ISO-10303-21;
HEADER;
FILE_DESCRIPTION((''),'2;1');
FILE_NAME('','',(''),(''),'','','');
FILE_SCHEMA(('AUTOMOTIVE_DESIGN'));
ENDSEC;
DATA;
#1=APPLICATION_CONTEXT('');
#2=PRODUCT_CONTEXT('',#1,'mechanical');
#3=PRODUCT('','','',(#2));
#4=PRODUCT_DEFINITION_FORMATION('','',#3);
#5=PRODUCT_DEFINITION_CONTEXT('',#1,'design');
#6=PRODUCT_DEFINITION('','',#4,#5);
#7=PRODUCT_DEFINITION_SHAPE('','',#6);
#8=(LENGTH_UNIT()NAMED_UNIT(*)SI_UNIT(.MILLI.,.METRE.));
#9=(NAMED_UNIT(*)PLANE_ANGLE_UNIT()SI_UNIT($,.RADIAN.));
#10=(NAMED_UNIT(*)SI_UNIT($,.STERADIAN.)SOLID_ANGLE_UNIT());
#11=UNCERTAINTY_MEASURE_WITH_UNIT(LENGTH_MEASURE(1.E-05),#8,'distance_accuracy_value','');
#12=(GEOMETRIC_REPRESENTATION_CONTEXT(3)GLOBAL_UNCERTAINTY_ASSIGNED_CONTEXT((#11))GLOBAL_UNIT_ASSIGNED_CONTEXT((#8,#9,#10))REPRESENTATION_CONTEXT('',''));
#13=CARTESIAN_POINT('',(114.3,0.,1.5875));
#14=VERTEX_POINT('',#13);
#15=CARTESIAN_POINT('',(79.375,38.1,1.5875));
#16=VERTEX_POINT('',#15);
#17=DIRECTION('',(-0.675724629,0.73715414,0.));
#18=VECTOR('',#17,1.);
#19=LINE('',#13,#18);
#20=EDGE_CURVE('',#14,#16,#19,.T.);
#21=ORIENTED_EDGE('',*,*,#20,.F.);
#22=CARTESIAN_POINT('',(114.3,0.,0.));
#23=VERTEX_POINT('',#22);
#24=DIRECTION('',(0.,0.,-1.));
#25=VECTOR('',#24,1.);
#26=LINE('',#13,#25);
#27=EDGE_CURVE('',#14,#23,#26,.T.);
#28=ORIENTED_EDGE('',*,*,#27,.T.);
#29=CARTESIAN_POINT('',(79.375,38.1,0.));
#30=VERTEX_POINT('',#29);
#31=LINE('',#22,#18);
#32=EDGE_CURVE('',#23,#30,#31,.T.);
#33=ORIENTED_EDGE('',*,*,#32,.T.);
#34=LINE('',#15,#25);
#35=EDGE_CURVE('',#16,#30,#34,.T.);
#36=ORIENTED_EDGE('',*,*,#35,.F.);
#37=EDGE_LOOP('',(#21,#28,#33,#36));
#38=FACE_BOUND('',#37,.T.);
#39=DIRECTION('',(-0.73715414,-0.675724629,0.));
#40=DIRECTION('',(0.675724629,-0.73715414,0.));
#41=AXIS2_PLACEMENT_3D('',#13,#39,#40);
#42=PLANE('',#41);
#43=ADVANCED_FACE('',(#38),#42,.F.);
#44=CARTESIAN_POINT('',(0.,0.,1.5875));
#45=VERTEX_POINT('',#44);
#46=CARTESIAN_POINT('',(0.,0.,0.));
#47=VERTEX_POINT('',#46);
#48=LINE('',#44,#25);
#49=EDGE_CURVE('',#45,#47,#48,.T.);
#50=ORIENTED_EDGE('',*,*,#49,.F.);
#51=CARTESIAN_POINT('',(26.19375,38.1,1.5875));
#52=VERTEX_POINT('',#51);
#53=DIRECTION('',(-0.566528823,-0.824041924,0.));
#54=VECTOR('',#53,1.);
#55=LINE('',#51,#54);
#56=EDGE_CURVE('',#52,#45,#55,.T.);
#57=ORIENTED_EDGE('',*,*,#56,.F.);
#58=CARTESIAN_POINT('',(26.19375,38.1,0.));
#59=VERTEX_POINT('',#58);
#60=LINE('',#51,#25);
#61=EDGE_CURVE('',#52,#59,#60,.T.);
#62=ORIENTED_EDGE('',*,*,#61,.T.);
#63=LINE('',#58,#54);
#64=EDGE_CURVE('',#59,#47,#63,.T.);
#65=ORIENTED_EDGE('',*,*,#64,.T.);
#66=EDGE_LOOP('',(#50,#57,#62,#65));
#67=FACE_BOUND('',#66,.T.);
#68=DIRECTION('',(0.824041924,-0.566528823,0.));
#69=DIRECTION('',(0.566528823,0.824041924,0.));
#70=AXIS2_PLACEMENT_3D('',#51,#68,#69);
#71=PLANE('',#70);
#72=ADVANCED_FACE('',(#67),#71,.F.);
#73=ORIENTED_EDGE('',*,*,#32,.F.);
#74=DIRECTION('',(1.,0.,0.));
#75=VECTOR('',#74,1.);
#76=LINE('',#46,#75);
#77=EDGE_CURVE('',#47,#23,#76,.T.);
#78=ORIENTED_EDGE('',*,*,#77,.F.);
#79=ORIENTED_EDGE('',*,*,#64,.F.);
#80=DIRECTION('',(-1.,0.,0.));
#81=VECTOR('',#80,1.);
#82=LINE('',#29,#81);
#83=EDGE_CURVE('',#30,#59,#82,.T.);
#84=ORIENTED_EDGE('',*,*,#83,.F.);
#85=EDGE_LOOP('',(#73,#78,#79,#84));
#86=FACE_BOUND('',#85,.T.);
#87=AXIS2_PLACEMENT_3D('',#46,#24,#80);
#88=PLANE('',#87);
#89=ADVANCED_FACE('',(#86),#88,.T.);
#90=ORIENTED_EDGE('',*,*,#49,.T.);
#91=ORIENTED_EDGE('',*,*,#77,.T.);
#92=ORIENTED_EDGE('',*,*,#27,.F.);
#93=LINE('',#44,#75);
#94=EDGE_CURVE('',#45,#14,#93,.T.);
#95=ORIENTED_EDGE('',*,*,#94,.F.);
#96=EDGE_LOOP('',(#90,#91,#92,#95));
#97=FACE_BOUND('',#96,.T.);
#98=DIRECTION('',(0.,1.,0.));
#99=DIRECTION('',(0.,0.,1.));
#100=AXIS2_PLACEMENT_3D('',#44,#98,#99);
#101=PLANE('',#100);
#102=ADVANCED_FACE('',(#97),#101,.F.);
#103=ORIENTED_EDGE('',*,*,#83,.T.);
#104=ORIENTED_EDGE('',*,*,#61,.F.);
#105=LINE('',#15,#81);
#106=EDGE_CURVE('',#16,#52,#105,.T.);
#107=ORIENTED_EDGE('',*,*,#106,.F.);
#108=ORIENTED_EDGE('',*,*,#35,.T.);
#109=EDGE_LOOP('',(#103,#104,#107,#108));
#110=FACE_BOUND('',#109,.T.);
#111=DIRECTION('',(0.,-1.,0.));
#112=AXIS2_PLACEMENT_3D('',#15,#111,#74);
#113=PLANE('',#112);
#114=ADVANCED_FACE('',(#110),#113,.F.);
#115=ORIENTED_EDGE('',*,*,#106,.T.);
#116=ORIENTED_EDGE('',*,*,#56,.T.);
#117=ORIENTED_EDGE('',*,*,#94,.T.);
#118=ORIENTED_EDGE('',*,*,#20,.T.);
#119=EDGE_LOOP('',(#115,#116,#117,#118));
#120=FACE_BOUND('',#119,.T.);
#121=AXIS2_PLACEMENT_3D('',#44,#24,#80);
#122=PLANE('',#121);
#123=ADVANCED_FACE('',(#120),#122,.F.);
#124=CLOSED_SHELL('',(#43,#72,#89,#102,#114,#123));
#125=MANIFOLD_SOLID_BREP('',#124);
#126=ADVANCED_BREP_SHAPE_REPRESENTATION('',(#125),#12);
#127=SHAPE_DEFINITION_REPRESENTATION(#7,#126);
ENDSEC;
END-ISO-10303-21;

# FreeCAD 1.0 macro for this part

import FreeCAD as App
import Part
import Sketcher
from FreeCAD import Vector
Q = App.Units.Quantity


def add_polygon(sketch, points):
    """Adds a closed chain of lines whose ends are joined by coincident constraints."""
    first, n = sketch.GeometryCount, len(points)
    for a, b in zip(points, points[1:] + points[:1]):
        sketch.addGeometry(Part.LineSegment(App.Vector(*a, 0), App.Vector(*b, 0)), False)
    for i in range(n):
        sketch.addConstraint(Sketcher.Constraint("Coincident", first + i, 2, first + (i + 1) % n, 1))

doc = App.newDocument("Part")
body = doc.addObject("PartDesign::Body", "Body")

# Sketch on XY plane
sketch1 = body.newObject("Sketcher::SketchObject", "Sketch")
sketch1.AttachmentSupport = (doc.getObject("XY_Plane"), [""])
sketch1.MapMode = "FlatFace"
add_polygon(sketch1, [(0, 0), (114, 0), (79, 38), (26, 38)])  # lines 0-3
sketch1.addConstraint([
    Sketcher.Constraint("Horizontal", 0),
    Sketcher.Constraint("Horizontal", 2),
    Sketcher.Constraint("Coincident", 3, 2, -1, 1),
    Sketcher.Constraint("DistanceX", 0, 1, 0, 2, Q("4.5 in")),
    Sketcher.Constraint("DistanceY", -1, 1, 1, 2, Q("1.5 in")),
    Sketcher.Constraint("DistanceX", 2, 2, 2, 1, Q("2.09375 in")),
    Sketcher.Constraint("DistanceX", -1, 1, 1, 2, Q("3.125 in")),
])
pad1 = body.newObject("PartDesign::Pad", "Pad")
pad1.Profile = sketch1
pad1.Length = Q("0.0625 in")

doc.recompute()
